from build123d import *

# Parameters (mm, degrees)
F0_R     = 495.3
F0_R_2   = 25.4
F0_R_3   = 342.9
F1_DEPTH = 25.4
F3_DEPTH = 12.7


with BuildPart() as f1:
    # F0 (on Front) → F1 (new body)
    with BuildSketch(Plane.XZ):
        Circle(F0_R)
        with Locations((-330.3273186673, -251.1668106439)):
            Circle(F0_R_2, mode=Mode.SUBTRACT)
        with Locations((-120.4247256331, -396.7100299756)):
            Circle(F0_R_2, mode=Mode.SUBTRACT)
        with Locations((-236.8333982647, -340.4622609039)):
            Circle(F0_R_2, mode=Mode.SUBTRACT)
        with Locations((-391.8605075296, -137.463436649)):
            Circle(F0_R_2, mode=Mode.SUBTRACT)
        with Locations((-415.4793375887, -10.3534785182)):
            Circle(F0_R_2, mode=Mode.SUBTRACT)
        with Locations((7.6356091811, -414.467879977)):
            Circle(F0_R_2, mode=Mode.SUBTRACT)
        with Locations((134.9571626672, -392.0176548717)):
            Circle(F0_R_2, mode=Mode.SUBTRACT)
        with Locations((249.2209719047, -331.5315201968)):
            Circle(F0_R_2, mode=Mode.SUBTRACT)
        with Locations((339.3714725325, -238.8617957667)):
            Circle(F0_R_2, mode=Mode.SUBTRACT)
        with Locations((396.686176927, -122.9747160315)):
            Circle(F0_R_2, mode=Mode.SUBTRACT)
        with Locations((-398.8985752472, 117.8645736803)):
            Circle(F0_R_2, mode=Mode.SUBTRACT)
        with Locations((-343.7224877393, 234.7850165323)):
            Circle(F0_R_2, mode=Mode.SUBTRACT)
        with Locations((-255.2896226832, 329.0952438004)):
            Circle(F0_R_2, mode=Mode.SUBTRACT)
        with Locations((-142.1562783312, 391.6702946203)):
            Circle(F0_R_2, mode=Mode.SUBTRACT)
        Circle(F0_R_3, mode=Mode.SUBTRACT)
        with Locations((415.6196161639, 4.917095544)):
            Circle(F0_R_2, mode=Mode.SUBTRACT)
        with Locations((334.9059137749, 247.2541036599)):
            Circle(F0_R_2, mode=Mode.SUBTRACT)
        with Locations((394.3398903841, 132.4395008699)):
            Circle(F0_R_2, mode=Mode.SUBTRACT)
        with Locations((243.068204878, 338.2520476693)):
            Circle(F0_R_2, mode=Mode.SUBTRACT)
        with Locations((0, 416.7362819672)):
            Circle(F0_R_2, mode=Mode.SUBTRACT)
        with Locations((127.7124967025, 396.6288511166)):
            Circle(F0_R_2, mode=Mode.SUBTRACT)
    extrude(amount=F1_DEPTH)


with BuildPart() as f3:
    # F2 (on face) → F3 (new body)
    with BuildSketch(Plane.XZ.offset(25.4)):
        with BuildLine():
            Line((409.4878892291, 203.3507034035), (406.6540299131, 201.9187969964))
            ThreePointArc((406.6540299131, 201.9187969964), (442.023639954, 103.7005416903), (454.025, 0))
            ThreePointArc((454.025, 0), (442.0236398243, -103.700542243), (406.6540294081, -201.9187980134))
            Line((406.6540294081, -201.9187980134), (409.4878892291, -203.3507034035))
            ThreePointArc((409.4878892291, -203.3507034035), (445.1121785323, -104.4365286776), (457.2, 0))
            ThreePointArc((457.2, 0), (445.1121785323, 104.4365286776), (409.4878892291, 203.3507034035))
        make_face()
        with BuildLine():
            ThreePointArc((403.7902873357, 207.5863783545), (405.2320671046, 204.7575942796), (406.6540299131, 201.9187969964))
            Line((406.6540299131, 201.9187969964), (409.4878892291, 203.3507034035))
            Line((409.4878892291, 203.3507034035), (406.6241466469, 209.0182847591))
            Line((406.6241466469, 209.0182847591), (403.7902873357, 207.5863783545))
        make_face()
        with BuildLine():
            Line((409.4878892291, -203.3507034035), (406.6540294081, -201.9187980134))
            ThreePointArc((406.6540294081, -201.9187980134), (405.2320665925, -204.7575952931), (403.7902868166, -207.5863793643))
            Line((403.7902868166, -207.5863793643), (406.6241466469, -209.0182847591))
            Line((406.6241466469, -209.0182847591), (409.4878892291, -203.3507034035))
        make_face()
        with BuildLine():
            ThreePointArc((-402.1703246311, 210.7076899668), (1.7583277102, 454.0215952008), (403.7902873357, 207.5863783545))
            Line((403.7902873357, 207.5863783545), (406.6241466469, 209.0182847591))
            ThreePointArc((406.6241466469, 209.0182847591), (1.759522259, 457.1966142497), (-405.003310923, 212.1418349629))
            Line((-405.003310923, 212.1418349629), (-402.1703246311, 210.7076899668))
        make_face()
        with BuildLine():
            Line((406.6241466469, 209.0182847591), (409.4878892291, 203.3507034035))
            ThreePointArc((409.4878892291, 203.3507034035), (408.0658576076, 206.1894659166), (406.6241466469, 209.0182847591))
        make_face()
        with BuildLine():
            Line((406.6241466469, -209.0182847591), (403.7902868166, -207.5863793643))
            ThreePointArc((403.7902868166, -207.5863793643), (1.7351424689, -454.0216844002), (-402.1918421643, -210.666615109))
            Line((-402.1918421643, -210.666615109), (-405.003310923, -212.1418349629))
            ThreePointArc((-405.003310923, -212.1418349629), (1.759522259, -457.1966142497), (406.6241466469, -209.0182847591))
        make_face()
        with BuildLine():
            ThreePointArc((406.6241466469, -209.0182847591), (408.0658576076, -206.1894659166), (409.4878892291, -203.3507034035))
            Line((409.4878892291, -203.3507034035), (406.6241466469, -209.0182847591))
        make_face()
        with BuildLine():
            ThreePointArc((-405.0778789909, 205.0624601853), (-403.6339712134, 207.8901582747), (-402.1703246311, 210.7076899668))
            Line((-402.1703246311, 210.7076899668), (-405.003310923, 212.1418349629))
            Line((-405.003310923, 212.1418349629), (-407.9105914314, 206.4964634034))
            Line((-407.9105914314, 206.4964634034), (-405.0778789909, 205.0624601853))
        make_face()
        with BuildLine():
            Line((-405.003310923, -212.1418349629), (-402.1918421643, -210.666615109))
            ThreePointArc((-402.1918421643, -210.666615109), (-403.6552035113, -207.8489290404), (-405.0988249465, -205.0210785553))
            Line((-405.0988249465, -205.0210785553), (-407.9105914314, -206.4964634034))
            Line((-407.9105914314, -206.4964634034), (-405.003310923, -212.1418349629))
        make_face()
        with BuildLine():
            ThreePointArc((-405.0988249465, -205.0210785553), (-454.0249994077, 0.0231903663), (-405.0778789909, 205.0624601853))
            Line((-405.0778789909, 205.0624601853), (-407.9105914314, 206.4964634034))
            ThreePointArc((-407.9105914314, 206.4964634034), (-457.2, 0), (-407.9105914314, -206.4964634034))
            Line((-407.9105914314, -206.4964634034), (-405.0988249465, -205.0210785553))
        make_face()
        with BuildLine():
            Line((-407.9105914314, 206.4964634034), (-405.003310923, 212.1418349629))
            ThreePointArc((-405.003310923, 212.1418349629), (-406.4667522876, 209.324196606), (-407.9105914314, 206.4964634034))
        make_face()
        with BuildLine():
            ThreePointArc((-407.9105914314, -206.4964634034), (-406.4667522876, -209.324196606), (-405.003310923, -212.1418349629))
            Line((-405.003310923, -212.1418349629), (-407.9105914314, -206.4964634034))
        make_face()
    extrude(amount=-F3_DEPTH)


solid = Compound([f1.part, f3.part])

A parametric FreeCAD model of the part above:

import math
import FreeCAD as App
import Part
import Sketcher
Q = App.Units.Quantity

doc = App.newDocument("Part")
body = doc.addObject("PartDesign::Body", "Body")

# Sketch on XZ plane
sketch1 = body.newObject("Sketcher::SketchObject", "Sketch")
sketch1.AttachmentSupport = (doc.getObject("XZ_Plane"), [""])
sketch1.MapMode = "FlatFace"
sketch1.addGeometry([
    Part.Circle(App.Vector(0, 0, 0), App.Vector(0, 0, 1), 495),  # 0
    Part.Circle(App.Vector(-237, -340, 0), App.Vector(0, 0, 1), 25),  # 1
    Part.Circle(App.Vector(-330, -251, 0), App.Vector(0, 0, 1), 25),  # 2
    Part.Circle(App.Vector(-120, -397, 0), App.Vector(0, 0, 1), 25),  # 3
    Part.Circle(App.Vector(-392, -137, 0), App.Vector(0, 0, 1), 25),  # 4
    Part.Circle(App.Vector(-415, -10, 0), App.Vector(0, 0, 1), 25),  # 5
    Part.Circle(App.Vector(0, 0, 0), App.Vector(0, 0, 1), 343),  # 6
    Part.Circle(App.Vector(8, -414, 0), App.Vector(0, 0, 1), 25),  # 7
    Part.Circle(App.Vector(135, -392, 0), App.Vector(0, 0, 1), 25),  # 8
    Part.Circle(App.Vector(249, -332, 0), App.Vector(0, 0, 1), 25),  # 9
    Part.Circle(App.Vector(339, -239, 0), App.Vector(0, 0, 1), 25),  # 10
    Part.Circle(App.Vector(397, -123, 0), App.Vector(0, 0, 1), 25),  # 11
    Part.Circle(App.Vector(-399, 118, 0), App.Vector(0, 0, 1), 25),  # 12
    Part.Circle(App.Vector(-344, 235, 0), App.Vector(0, 0, 1), 25),  # 13
    Part.Circle(App.Vector(-255, 329, 0), App.Vector(0, 0, 1), 25),  # 14
    Part.Circle(App.Vector(-142, 392, 0), App.Vector(0, 0, 1), 25),  # 15
    Part.Circle(App.Vector(0, 417, 0), App.Vector(0, 0, 1), 25),  # 16
    Part.Circle(App.Vector(416, 5, 0), App.Vector(0, 0, 1), 25),  # 17
    Part.Circle(App.Vector(394, 132, 0), App.Vector(0, 0, 1), 25),  # 18
    Part.Circle(App.Vector(128, 397, 0), App.Vector(0, 0, 1), 25),  # 19
    Part.Circle(App.Vector(335, 247, 0), App.Vector(0, 0, 1), 25),  # 20
    Part.Circle(App.Vector(243, 338, 0), App.Vector(0, 0, 1), 25),  # 21
], False)
sketch1.addConstraint([
    Sketcher.Constraint("Coincident", 0, 3, -1, 1),
    Sketcher.Constraint("Coincident", 6, 3, -1, 1),
    Sketcher.Constraint("Equal", 1, 2),
    Sketcher.Constraint("Equal", 2, 3),
    Sketcher.Constraint("Equal", 3, 4),
    Sketcher.Constraint("Equal", 4, 5),
    Sketcher.Constraint("Equal", 5, 7),
    Sketcher.Constraint("Equal", 7, 8),
    Sketcher.Constraint("Equal", 8, 9),
    Sketcher.Constraint("Equal", 9, 10),
    Sketcher.Constraint("Equal", 10, 11),
    Sketcher.Constraint("Equal", 11, 12),
    Sketcher.Constraint("Equal", 12, 13),
    Sketcher.Constraint("Equal", 13, 14),
    Sketcher.Constraint("Equal", 14, 15),
    Sketcher.Constraint("Equal", 15, 16),
    Sketcher.Constraint("Equal", 16, 17),
    Sketcher.Constraint("Equal", 17, 18),
    Sketcher.Constraint("Equal", 18, 19),
    Sketcher.Constraint("Equal", 19, 20),
    Sketcher.Constraint("Equal", 20, 21),
    Sketcher.Constraint("PointOnObject", 16, 3, -2),
    Sketcher.Constraint("Diameter", 0, Q("39 in")),
    Sketcher.Constraint("Diameter", 1, Q("2 in")),
    Sketcher.Constraint("Diameter", 6, Q("27 in")),
    Sketcher.Constraint("DistanceX", 1, 3, -1, 1, 236.833398),
    Sketcher.Constraint("DistanceY", -1, 1, 18, 3, 132.439501),
    Sketcher.Constraint("DistanceX", 9, 3, 10, 3, 90.150501),
    Sketcher.Constraint("DistanceY", 1, 3, -1, 1, 340.462261),
    Sketcher.Constraint("DistanceX", 2, 3, -1, 1, 330.327319),
    Sketcher.Constraint("DistanceY", 2, 3, -1, 1, 251.166811),
    Sketcher.Constraint("DistanceY", 3, 3, -1, 1, 396.71003),
    Sketcher.Constraint("DistanceY", 5, 3, -1, 1, 10.353479),
    Sketcher.Constraint("DistanceX", -1, 1, 7, 3, 7.635609),
    Sketcher.Constraint("DistanceY", 7, 3, -1, 1, 414.46788),
    Sketcher.Constraint("DistanceX", -1, 1, 9, 3, 249.220972),
    Sketcher.Constraint("DistanceY", 9, 3, -1, 1, 331.53152),
    Sketcher.Constraint("DistanceX", 15, 3, -1, 1, 142.156278),
    Sketcher.Constraint("DistanceY", -1, 1, 16, 3, 416.736282),
    Sketcher.Constraint("DistanceX", -1, 1, 18, 3, 394.33989),
    Sketcher.Constraint("DistanceY", -1, 1, 19, 3, 396.628851),
    Sketcher.Constraint("DistanceX", 4, 3, 2, 3, 61.533189),
    Sketcher.Constraint("DistanceX", 4, 3, 3, 3, 271.435782),
    Sketcher.Constraint("DistanceX", 5, 3, 4, 3, 23.61883),
    Sketcher.Constraint("DistanceY", 4, 3, 5, 3, 127.109958),
    Sketcher.Constraint("DistanceX", 3, 3, 8, 3, 255.381888),
    Sketcher.Constraint("DistanceY", 8, 3, 10, 3, 153.155859),
    Sketcher.Constraint("DistanceY", 10, 3, 11, 3, 115.88708),
    Sketcher.Constraint("DistanceY", 4, 3, 12, 3, 255.32801),
    Sketcher.Constraint("DistanceX", 5, 3, 13, 3, 71.75685),
    Sketcher.Constraint("DistanceY", 12, 3, 14, 3, 211.23067),
    Sketcher.Constraint("DistanceY", 14, 3, 15, 3, 62.575051),
    Sketcher.Constraint("DistanceY", 13, 3, 15, 3, 156.885278),
    Sketcher.Constraint("DistanceX", 11, 3, 17, 3, 18.933439),
    Sketcher.Constraint("DistanceY", 11, 3, 17, 3, 127.891812),
    Sketcher.Constraint("DistanceX", 14, 3, 19, 3, 383.002119),
    Sketcher.Constraint("DistanceY", 17, 3, 20, 3, 242.337008),
    Sketcher.Constraint("DistanceY", 20, 3, 16, 3, 169.482178),
    Sketcher.Constraint("DistanceX", 21, 3, 20, 3, 91.837709),
    Sketcher.Constraint("DistanceX", 19, 3, 21, 3, 115.355708),
    Sketcher.Constraint("DistanceX", 21, 3, 17, 3, 172.551411),
    Sketcher.Constraint("DistanceX", -1, 1, 11, 3, 396.686177),
    Sketcher.Constraint("DistanceX", 12, 3, -1, 1, 398.898575),
    Sketcher.Constraint("DistanceY", -1, 1, 21, 3, 338.252048),
])
pad1 = body.newObject("PartDesign::Pad", "Pad")
pad1.Profile = sketch1
pad1.Length = Q("1 in")
body2 = doc.addObject("PartDesign::Body", "Body001")

# Sketch on XZ plane
sketch2 = body2.newObject("Sketcher::SketchObject", "Sketch001")
sketch2.AttachmentSupport = (doc.getObject("XZ_Plane001"), [""])
sketch2.MapMode = "FlatFace"
sketch2.AttachmentOffset = App.Placement(App.Vector(0, 0, 1 * 25.4), App.Rotation())
sketch2.addGeometry([
    Part.ArcOfCircle(Part.Circle(App.Vector(0, 0, 0), App.Vector(0, 0, 1), 457), math.radians(-152), math.radians(-27)),  # 0
    Part.ArcOfCircle(Part.Circle(App.Vector(0, 0, 0), App.Vector(0, 0, 1), 457), math.radians(-27.2), math.radians(-26.41)),  # 1
    Part.ArcOfCircle(Part.Circle(App.Vector(0, 0, 0), App.Vector(0, 0, 1), 457), math.radians(-26), math.radians(26)),  # 2
    Part.ArcOfCircle(Part.Circle(App.Vector(0, 0, 0), App.Vector(0, 0, 1), 457), math.radians(26.41), math.radians(27.2)),  # 3
    Part.ArcOfCircle(Part.Circle(App.Vector(0, 0, 0), App.Vector(0, 0, 1), 457), math.radians(27), math.radians(152)),  # 4
    Part.ArcOfCircle(Part.Circle(App.Vector(0, 0, 0), App.Vector(0, 0, 1), 457), math.radians(152.35), math.radians(153.15)),  # 5
    Part.ArcOfCircle(Part.Circle(App.Vector(0, 0, 0), App.Vector(0, 0, 1), 457), math.radians(153), math.radians(207)),  # 6
    Part.ArcOfCircle(Part.Circle(App.Vector(0, 0, 0), App.Vector(0, 0, 1), 457), math.radians(-153.15), math.radians(-152.35)),  # 7
    Part.ArcOfCircle(Part.Circle(App.Vector(0, 0, 0), App.Vector(0, 0, 1), 454), math.radians(-26), math.radians(26)),  # 8
    Part.ArcOfCircle(Part.Circle(App.Vector(0, 0, 0), App.Vector(0, 0, 1), 454), math.radians(-27.21), math.radians(-26.41)),  # 9
    Part.ArcOfCircle(Part.Circle(App.Vector(0, 0, 0), App.Vector(0, 0, 1), 454), math.radians(-152), math.radians(-27)),  # 10
    Part.ArcOfCircle(Part.Circle(App.Vector(0, 0, 0), App.Vector(0, 0, 1), 454), math.radians(-153.16), math.radians(-152.35)),  # 11
    Part.ArcOfCircle(Part.Circle(App.Vector(0, 0, 0), App.Vector(0, 0, 1), 454), math.radians(153), math.radians(207)),  # 12
    Part.ArcOfCircle(Part.Circle(App.Vector(0, 0, 0), App.Vector(0, 0, 1), 454), math.radians(152.35), math.radians(153.15)),  # 13
    Part.ArcOfCircle(Part.Circle(App.Vector(0, 0, 0), App.Vector(0, 0, 1), 454), math.radians(27), math.radians(152)),  # 14
    Part.ArcOfCircle(Part.Circle(App.Vector(0, 0, 0), App.Vector(0, 0, 1), 454), math.radians(26.41), math.radians(27.21)),  # 15
], False)
sketch2.addConstraint([
    Sketcher.Constraint("Tangent", 0, 2, 1, 1),
    Sketcher.Constraint("Coincident", 1, 2, 2, 1),
    Sketcher.Constraint("Tangent", 2, 2, 3, 1),
    Sketcher.Constraint("Coincident", 3, 2, 4, 1),
    Sketcher.Constraint("Tangent", 4, 2, 5, 1),
    Sketcher.Constraint("Coincident", 5, 2, 6, 1),
    Sketcher.Constraint("Tangent", 6, 2, 7, 1),
    Sketcher.Constraint("Coincident", 7, 2, 0, 1),
    Sketcher.Constraint("Tangent", 8, 1, 9, 2),
    Sketcher.Constraint("Coincident", 9, 1, 10, 2),
    Sketcher.Constraint("Tangent", 10, 1, 11, 2),
    Sketcher.Constraint("Coincident", 11, 1, 12, 2),
    Sketcher.Constraint("Tangent", 12, 1, 13, 2),
    Sketcher.Constraint("Coincident", 13, 1, 14, 2),
    Sketcher.Constraint("Tangent", 14, 1, 15, 2),
    Sketcher.Constraint("Coincident", 15, 1, 8, 2),
    Sketcher.Constraint("Coincident", 0, 3, -1, 1),
    Sketcher.Constraint("Coincident", 2, 3, -1, 1),
    Sketcher.Constraint("Coincident", 4, 3, -1, 1),
    Sketcher.Constraint("Coincident", 7, 3, -1, 1),
    Sketcher.Constraint("Coincident", 8, 3, -1, 1),
    Sketcher.Constraint("Coincident", 10, 3, -1, 1),
    Sketcher.Constraint("Coincident", 12, 3, -1, 1),
    Sketcher.Constraint("Coincident", 14, 3, -1, 1),
    Sketcher.Constraint("Equal", 0, 1),
    Sketcher.Constraint("Equal", 2, 3),
    Sketcher.Constraint("Equal", 5, 7),
    Sketcher.Constraint("Equal", 8, 9),
    Sketcher.Constraint("Equal", 10, 11),
    Sketcher.Constraint("Equal", 12, 13),
    Sketcher.Constraint("Vertical", 1, 2, 2, 2),
    Sketcher.Constraint("Vertical", 0, 2, 3, 2),
    Sketcher.Constraint("Vertical", 5, 2, 6, 2),
    Sketcher.Constraint("Vertical", 4, 2, 7, 2),
    Sketcher.Constraint("Vertical", 9, 1, 14, 1),
    Sketcher.Constraint("Vertical", 8, 1, 15, 1),
    Sketcher.Constraint("Radius", 0, Q("18 in")),
    Sketcher.Constraint("Radius", 8, Q("17.875 in")),
    Sketcher.Constraint("DistanceY", 8, 1, -1, 1, 201.918798),
    Sketcher.Constraint("DistanceY", 6, 2, 4, 2, 418.638298),
    Sketcher.Constraint("DistanceY", 8, 1, 2, 2, 405.269501),
    Sketcher.Constraint("DistanceX", 11, 1, 13, 1, 2.9285),
    Sketcher.Constraint("DistanceX", 14, 1, 2, 2, 5.697602),
    Sketcher.Constraint("DistanceX", 4, 2, -1, 1, 405.003311),
    Sketcher.Constraint("DistanceY", 11, 1, -1, 1, 205.021079),
    Sketcher.Constraint("DistanceX", 12, 1, -1, 1, 405.077879),
    Sketcher.Constraint("DistanceY", 0, 2, 1, 2, 5.667581),
    Sketcher.Constraint("DistanceX", 7, 2, 10, 1, 2.811469),
])
pad2 = body2.newObject("PartDesign::Pad", "Pad001")
pad2.Profile = sketch2
pad2.Length = Q("0.5 in")
pad2.Reversed = True

doc.recompute()
